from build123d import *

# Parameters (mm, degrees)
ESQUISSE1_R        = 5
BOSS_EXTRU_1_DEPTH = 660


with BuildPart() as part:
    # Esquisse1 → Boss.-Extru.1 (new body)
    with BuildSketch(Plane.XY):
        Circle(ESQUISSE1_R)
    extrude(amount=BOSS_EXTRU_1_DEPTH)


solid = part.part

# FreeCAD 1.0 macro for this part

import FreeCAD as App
import Part
import Sketcher
from FreeCAD import Vector
Q = App.Units.Quantity

doc = App.newDocument("Part")
body = doc.addObject("PartDesign::Body", "Body")

# Sketch on XY plane
sketch1 = doc.addObject("Sketcher::SketchObject", "Sketch")
body.addObject(sketch1)
sketch1.AttachmentSupport = (doc.XY_Plane, [""])
sketch1.MapMode = "FlatFace"
sketch1.addGeometry(Part.Circle(Vector(0, 0, 0), Vector(0, 0, 1), 5), False)
sketch1.addConstraint([
    Sketcher.Constraint("Coincident", 0, 3, -1, 1),
    Sketcher.Constraint("Diameter", 0, Q("10 mm")),
])
pad1 = doc.addObject("PartDesign::Pad", "Pad")
body.addObject(pad1)
pad1.Profile = sketch1
pad1.Length = 660

doc.recompute()
